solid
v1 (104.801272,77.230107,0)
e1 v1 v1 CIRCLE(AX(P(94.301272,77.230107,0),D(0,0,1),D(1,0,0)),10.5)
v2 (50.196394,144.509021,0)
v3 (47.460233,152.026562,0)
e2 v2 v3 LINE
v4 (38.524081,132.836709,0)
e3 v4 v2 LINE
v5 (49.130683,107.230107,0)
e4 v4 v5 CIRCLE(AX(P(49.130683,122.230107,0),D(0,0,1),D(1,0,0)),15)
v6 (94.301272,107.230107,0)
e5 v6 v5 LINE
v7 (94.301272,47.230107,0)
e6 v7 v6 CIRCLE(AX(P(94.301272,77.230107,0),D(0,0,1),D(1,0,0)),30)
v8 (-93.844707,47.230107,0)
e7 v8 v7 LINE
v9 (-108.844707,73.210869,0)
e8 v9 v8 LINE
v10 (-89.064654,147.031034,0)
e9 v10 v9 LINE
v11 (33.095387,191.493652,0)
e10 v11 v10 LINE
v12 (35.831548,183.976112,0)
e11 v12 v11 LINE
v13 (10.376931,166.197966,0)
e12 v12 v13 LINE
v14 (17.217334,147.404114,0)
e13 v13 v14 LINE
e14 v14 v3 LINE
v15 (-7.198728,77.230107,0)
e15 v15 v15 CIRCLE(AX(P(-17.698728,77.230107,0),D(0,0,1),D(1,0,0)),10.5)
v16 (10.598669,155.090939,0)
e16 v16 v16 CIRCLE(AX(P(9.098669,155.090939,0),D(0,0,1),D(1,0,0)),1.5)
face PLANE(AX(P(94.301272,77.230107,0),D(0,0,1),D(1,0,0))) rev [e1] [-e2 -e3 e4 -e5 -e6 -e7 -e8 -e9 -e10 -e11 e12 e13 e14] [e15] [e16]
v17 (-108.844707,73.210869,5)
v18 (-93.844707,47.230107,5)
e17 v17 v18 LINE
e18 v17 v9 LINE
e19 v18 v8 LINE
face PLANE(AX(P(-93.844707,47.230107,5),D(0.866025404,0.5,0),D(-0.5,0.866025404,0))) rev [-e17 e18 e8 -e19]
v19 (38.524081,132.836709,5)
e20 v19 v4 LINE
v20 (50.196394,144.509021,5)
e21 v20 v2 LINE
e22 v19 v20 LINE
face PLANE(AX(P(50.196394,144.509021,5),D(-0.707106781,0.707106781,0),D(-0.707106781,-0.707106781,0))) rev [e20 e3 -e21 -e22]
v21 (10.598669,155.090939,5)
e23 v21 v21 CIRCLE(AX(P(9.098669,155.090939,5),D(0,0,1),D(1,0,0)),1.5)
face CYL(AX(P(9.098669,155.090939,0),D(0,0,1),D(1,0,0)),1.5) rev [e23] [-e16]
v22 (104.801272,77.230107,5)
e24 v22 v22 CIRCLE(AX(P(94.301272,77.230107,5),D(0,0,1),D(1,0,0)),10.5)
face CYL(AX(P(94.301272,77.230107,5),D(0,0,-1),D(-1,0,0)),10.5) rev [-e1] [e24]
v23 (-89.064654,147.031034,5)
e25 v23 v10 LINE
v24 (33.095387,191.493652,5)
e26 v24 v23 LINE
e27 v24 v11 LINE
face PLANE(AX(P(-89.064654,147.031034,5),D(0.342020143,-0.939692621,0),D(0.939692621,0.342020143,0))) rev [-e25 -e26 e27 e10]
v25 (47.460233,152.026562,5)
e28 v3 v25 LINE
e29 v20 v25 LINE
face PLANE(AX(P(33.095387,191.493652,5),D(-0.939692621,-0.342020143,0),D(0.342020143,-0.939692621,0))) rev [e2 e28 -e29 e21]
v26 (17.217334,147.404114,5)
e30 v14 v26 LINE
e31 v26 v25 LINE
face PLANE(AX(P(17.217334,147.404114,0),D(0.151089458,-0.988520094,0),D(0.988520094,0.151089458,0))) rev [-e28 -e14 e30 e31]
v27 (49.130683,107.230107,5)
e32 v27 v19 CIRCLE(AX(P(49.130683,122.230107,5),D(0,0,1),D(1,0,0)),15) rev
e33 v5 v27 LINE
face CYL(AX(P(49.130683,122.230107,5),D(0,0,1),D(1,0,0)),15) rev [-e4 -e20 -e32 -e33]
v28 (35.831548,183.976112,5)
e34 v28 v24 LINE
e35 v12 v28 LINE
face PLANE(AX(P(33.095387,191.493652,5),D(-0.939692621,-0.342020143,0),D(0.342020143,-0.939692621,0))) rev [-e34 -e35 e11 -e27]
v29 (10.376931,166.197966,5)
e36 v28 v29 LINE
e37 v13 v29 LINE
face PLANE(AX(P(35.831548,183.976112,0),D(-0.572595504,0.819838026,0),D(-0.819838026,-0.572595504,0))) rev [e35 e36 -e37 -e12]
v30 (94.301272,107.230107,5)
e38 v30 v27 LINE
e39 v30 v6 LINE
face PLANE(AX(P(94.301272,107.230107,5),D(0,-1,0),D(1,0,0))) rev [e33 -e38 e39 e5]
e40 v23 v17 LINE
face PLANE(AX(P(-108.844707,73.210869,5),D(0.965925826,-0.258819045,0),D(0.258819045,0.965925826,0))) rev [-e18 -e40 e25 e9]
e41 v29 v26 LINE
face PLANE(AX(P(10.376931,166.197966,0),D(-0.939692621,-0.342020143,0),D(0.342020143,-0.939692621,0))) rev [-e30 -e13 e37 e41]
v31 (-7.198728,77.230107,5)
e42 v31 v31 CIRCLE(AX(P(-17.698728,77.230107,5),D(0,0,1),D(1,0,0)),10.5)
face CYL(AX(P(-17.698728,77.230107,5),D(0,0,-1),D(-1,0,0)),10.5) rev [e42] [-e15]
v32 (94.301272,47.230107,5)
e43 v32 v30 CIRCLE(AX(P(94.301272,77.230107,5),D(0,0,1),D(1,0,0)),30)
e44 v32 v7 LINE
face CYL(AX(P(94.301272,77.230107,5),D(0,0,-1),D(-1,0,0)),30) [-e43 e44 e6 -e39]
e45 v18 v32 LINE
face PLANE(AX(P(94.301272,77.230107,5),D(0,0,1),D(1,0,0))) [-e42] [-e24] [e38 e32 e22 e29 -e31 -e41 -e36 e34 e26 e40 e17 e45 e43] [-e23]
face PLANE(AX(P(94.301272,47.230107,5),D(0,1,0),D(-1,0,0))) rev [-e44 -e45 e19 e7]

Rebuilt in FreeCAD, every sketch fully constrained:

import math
import FreeCAD as App
import Part
import Sketcher
Q = App.Units.Quantity


def edges_at(feature, points):
    """Names of the edges that pass closest to the given points."""
    edges = feature.Shape.Edges
    near = lambda p: min(range(len(edges)), key=lambda i: edges[i].distToShape(Part.Vertex(*p))[0])
    return sorted({f"Edge{near(p) + 1}" for p in points})

doc = App.newDocument("Part")
body = doc.addObject("PartDesign::Body", "Body")

sketch1 = doc.addObject("Sketcher::SketchObject", "Sketch")
body.addObject(sketch1)
sketch1.AttachmentSupport = (doc.XY_Plane, [""])
sketch1.MapMode = "FlatFace"
sketch1.addGeometry(Part.LineSegment(App.Vector(94, 107, 0), App.Vector(13, 107, 0)), False)
sketch1.addGeometry(Part.LineSegment(App.Vector(13, 107, 0), App.Vector(50, 145, 0)), False)
sketch1.addGeometry(Part.LineSegment(App.Vector(50, 145, 0), App.Vector(33, 191, 0)), False)
sketch1.addGeometry(Part.LineSegment(App.Vector(33, 191, 0), App.Vector(-89, 147, 0)), False)
sketch1.addGeometry(Part.LineSegment(App.Vector(-89, 147, 0), App.Vector(-109, 73, 0)), False)
sketch1.addGeometry(Part.LineSegment(App.Vector(-109, 73, 0), App.Vector(-94, 47, 0)), False)
sketch1.addGeometry(Part.LineSegment(App.Vector(-94, 47, 0), App.Vector(94, 47, 0)), False)
sketch1.addGeometry(Part.ArcOfCircle(Part.Circle(App.Vector(94, 77, 0), App.Vector(0, 0, 1), 30), math.radians(-90), math.radians(90)), False)
sketch1.addGeometry(Part.Circle(App.Vector(-18, 77, 0), App.Vector(0, 0, 1), 10), False)
sketch1.addGeometry(Part.Circle(App.Vector(94, 77, 0), App.Vector(0, 0, 1), 10), False)
sketch1.addConstraint(Sketcher.Constraint("Coincident", 0, 2, 1, 1))
sketch1.addConstraint(Sketcher.Constraint("Coincident", 1, 2, 2, 1))
sketch1.addConstraint(Sketcher.Constraint("Coincident", 2, 2, 3, 1))
sketch1.addConstraint(Sketcher.Constraint("Coincident", 3, 2, 4, 1))
sketch1.addConstraint(Sketcher.Constraint("Coincident", 4, 2, 5, 1))
sketch1.addConstraint(Sketcher.Constraint("Coincident", 5, 2, 6, 1))
sketch1.addConstraint(Sketcher.Constraint("Tangent", 6, 2, 7, 1))
sketch1.addConstraint(Sketcher.Constraint("Tangent", 7, 2, 0, 1))
sketch1.addConstraint(Sketcher.Constraint("Horizontal", 0))
sketch1.addConstraint(Sketcher.Constraint("Horizontal", 6))
sketch1.addConstraint(Sketcher.Constraint("Coincident", 9, 3, 7, 3))
sketch1.addConstraint(Sketcher.Constraint("Equal", 8, 9))
sketch1.addConstraint(Sketcher.Constraint("Perpendicular", 2, 3))
sketch1.addConstraint(Sketcher.Constraint("Horizontal", 7, 3, 8, 3))
sketch1.addConstraint(Sketcher.Constraint("Diameter", 8, 21.0))
sketch1.addConstraint(Sketcher.Constraint("Radius", 7, 30.0))
sketch1.addConstraint(Sketcher.Constraint("Angle", 1, Q("45 deg")))
sketch1.addConstraint(Sketcher.Constraint("Angle", 2, Q("110 deg")))
sketch1.addConstraint(Sketcher.Constraint("Angle", 4, Q("-105 deg")))
sketch1.addConstraint(Sketcher.Constraint("Angle", 5, Q("-60 deg")))
sketch1.addConstraint(Sketcher.Constraint("Distance", 2, 50.0))
sketch1.addConstraint(Sketcher.Constraint("Distance", 3, 130.0))
sketch1.addConstraint(Sketcher.Constraint("Distance", 5, 30.0))
sketch1.addConstraint(Sketcher.Constraint("DistanceX", 8, 3, 7, 3, 112.0))
sketch1.addConstraint(Sketcher.Constraint("DistanceX", 6, 1, 6, 2, 188.145979))
sketch1.addConstraint(Sketcher.Constraint("DistanceX", 4, 2, 1, 2, 159.041101))
sketch1.addConstraint(Sketcher.Constraint("DistanceX", -1, 1, 0, 2, 12.91748))
sketch1.addConstraint(Sketcher.Constraint("DistanceY", -1, 1, 1, 2, 144.509021))
pad1 = doc.addObject("PartDesign::Pad", "Pad")
body.addObject(pad1)
pad1.Profile = sketch1
pad1.Length = 5
doc.recompute()

fillet = doc.addObject("PartDesign::Fillet", "Fillet")
body.addObject(fillet)
fillet.Base = (pad1, edges_at(pad1, [(12.917, 107.23, 2.5)]))
fillet.Radius = 15

sketch2 = doc.addObject("Sketcher::SketchObject", "Sketch001")
body.addObject(sketch2)
sketch2.AttachmentSupport = (doc.XY_Plane, [""])
sketch2.MapMode = "FlatFace"
sketch2.AttachmentOffset = App.Placement(App.Vector(0, 0, 5), App.Rotation())
sketch2.addGeometry(Part.Circle(App.Vector(9.1, 155.1, 0), App.Vector(0, 0, 1), 1.5), False)
sketch2.addGeometry(Part.LineSegment(App.Vector(35.8, 184, 0), App.Vector(10.4, 166.2, 0)), False)
sketch2.addGeometry(Part.LineSegment(App.Vector(10.4, 166.2, 0), App.Vector(17.2, 147.4, 0)), False)
sketch2.addGeometry(Part.LineSegment(App.Vector(17.2, 147.4, 0), App.Vector(47.5, 152, 0)), False)
sketch2.addGeometry(Part.LineSegment(App.Vector(47.5, 152, 0), App.Vector(35.8, 184, 0)), False)
sketch2.addConstraint(Sketcher.Constraint("Coincident", 1, 2, 2, 1))
sketch2.addConstraint(Sketcher.Constraint("Coincident", 2, 2, 3, 1))
sketch2.addConstraint(Sketcher.Constraint("Coincident", 3, 2, 4, 1))
sketch2.addConstraint(Sketcher.Constraint("Coincident", 4, 2, 1, 1))
sketch2.addConstraint(Sketcher.Constraint("Parallel", 2, 4))
sketch2.addConstraint(Sketcher.Constraint("Diameter", 0, 3.0))
sketch2.addConstraint(Sketcher.Constraint("Angle", 2, Q("-70 deg")))
sketch2.addConstraint(Sketcher.Constraint("Distance", 2, 20.0))
sketch2.addConstraint(Sketcher.Constraint("Distance", 4, 34.0))
sketch2.addConstraint(Sketcher.Constraint("DistanceX", 2, 2, 3, 2, 30.242899))
sketch2.addConstraint(Sketcher.Constraint("Distance", 1, 31.048349))
sketch2.addConstraint(Sketcher.Constraint("DistanceX", -1, 1, 0, 3, 9.098669))
sketch2.addConstraint(Sketcher.Constraint("DistanceY", -1, 1, 0, 3, 155.090939))
sketch2.addConstraint(Sketcher.Constraint("DistanceX", -1, 1, 1, 2, 10.376931))
sketch2.addConstraint(Sketcher.Constraint("DistanceY", -1, 1, 4, 2, 183.976112))
pocket1 = doc.addObject("PartDesign::Pocket", "Pocket")
body.addObject(pocket1)
pocket1.Profile = sketch2
pocket1.Length = 5

doc.recompute()
